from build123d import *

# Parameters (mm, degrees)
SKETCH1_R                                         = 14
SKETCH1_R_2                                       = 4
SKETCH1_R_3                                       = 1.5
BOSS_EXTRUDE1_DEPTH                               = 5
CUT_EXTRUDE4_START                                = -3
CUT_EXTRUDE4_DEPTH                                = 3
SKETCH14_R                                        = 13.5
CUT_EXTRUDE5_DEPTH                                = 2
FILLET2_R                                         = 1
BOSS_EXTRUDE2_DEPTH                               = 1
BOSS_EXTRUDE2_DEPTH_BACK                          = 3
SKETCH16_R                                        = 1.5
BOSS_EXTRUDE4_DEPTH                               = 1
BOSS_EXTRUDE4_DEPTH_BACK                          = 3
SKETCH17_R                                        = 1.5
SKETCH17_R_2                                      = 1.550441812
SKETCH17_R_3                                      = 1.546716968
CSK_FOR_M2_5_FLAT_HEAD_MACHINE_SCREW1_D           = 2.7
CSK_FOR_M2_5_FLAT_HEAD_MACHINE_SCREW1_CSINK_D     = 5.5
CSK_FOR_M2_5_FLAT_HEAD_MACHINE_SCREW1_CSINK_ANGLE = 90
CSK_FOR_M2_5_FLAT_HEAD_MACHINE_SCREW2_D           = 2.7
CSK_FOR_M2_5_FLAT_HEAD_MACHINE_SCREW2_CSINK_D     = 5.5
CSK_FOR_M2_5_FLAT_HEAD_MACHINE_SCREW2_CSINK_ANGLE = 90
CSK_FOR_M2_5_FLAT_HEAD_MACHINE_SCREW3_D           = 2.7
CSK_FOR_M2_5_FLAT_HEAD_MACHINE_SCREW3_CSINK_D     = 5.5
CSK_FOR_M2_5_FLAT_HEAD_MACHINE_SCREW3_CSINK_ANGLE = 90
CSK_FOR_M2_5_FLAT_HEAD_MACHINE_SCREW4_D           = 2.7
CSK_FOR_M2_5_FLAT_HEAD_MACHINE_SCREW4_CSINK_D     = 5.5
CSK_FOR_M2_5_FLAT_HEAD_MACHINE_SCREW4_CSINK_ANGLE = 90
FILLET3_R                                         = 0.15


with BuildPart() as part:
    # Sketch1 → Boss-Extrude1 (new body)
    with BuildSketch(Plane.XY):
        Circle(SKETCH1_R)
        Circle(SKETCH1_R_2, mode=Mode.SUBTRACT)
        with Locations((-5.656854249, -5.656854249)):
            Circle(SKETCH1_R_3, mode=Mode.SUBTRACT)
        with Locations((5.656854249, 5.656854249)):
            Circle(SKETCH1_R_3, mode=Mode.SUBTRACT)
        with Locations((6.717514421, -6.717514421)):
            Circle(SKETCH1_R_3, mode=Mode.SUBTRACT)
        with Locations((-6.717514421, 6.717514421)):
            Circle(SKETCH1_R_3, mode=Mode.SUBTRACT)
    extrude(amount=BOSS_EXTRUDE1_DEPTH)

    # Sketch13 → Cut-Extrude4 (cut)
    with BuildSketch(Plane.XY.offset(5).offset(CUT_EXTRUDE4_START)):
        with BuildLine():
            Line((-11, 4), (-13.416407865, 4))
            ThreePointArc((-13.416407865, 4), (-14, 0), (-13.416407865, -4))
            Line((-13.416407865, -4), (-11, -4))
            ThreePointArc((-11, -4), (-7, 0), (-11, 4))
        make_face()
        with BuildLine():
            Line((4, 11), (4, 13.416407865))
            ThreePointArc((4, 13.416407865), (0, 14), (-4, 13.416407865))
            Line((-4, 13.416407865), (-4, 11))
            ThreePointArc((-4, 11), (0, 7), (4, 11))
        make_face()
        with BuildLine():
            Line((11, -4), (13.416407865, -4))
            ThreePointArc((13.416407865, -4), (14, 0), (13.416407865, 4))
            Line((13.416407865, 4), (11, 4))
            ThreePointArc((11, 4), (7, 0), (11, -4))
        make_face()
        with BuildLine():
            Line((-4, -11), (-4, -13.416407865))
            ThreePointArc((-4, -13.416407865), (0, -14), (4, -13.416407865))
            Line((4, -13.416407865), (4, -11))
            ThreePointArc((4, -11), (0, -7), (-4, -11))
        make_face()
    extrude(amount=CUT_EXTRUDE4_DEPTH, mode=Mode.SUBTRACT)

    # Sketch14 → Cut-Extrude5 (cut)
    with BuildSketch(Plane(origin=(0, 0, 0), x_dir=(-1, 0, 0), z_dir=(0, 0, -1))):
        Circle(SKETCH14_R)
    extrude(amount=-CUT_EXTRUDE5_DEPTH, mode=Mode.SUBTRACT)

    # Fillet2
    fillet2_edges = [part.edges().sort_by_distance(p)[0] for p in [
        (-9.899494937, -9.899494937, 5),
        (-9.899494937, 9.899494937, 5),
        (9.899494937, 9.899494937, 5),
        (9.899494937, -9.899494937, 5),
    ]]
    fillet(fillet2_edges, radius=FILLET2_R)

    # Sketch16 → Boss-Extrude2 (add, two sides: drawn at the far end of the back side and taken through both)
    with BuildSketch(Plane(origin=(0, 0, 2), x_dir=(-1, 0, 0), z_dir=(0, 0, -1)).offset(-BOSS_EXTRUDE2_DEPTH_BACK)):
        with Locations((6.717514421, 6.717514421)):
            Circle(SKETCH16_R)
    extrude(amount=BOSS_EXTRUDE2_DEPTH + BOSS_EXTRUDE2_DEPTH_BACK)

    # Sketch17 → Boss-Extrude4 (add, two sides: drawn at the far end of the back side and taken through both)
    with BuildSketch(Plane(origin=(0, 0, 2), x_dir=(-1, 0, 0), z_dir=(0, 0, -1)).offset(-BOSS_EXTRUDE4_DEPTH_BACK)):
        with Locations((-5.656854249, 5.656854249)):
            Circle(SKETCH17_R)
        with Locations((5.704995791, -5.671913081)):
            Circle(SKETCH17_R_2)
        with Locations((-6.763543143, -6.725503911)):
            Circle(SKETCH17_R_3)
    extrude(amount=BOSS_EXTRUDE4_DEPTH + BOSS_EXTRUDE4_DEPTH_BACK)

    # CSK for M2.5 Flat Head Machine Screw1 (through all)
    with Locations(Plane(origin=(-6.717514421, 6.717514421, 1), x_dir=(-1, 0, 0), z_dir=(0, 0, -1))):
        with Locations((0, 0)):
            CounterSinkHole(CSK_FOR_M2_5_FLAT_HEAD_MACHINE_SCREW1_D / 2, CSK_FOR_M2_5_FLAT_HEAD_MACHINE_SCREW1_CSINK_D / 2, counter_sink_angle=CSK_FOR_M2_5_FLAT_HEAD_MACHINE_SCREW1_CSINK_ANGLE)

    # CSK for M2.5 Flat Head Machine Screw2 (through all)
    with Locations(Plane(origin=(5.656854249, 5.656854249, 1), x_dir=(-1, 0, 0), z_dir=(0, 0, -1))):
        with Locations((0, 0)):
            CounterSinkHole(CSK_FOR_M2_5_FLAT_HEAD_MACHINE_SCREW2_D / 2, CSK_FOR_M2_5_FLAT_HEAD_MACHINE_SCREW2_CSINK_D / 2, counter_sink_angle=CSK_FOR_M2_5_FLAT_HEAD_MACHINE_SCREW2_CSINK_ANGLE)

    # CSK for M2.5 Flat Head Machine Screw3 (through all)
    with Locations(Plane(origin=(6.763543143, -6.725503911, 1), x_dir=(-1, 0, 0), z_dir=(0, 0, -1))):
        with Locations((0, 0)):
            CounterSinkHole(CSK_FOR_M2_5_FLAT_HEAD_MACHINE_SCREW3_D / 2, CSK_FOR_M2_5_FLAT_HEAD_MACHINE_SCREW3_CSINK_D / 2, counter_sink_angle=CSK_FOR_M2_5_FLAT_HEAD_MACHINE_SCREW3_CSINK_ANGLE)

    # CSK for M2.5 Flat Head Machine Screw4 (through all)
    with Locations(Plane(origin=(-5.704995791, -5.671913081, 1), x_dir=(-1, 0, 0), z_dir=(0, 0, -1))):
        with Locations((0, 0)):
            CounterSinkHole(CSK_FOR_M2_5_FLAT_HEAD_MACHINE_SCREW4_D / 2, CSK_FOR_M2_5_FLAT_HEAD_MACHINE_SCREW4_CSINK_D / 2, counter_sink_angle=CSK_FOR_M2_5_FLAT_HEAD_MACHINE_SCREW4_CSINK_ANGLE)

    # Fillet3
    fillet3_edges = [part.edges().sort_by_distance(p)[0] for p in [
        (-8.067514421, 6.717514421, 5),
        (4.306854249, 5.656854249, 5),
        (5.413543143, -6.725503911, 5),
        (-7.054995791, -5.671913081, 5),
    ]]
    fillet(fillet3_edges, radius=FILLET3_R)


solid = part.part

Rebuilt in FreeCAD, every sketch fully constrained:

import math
import FreeCAD as App
import Part
import Sketcher

V = App.Vector


def edges_at(feature, points):
    """Names of the edges that pass closest to the given points."""
    edges = feature.Shape.Edges
    near = lambda p: min(range(len(edges)), key=lambda i: edges[i].distToShape(Part.Vertex(*p))[0])
    return sorted({f"Edge{near(p) + 1}" for p in points})

doc = App.newDocument("Part")
body = doc.addObject("PartDesign::Body", "Body")

# Sketch on XY plane
sketch1 = body.newObject("Sketcher::SketchObject", "Sketch")
sketch1.AttachmentSupport = (doc.getObject("XY_Plane"), [""])
sketch1.MapMode = "FlatFace"
sketch1.addGeometry(Part.Circle(V(0, 0, 0), V(0, 0, 1), 14), False)
sketch1.addGeometry(Part.Circle(V(-5.7, -5.7, 0), V(0, 0, 1), 1.5), False)
sketch1.addGeometry(Part.Circle(V(6.7, -6.7, 0), V(0, 0, 1), 1.5), False)
sketch1.addGeometry(Part.Circle(V(-6.7, 6.7, 0), V(0, 0, 1), 1.5), False)
sketch1.addGeometry(Part.Circle(V(0, 0, 0), V(0, 0, 1), 4), False)
sketch1.addGeometry(Part.Circle(V(5.7, 5.7, 0), V(0, 0, 1), 1.5), False)
sketch1.addConstraint(Sketcher.Constraint("Coincident", 0, 3, -1, 1))
sketch1.addConstraint(Sketcher.Constraint("Coincident", 4, 3, -1, 1))
sketch1.addConstraint(Sketcher.Constraint("Equal", 1, 2))
sketch1.addConstraint(Sketcher.Constraint("Equal", 2, 3))
sketch1.addConstraint(Sketcher.Constraint("Equal", 3, 5))
sketch1.addConstraint(Sketcher.Constraint("Symmetric", 2, 3, 3, 3, -1, 1))
sketch1.addConstraint(Sketcher.Constraint("Symmetric", 1, 3, 5, 3, -1, 1))
sketch1.addConstraint(Sketcher.Constraint("Diameter", 0, 28.0))
sketch1.addConstraint(Sketcher.Constraint("Diameter", 1, 3.0))
sketch1.addConstraint(Sketcher.Constraint("Diameter", 4, 8.0))
sketch1.addConstraint(Sketcher.Constraint("DistanceX", 1, 3, 2, 3, 12.374369))
sketch1.addConstraint(Sketcher.Constraint("DistanceY", 2, 3, 1, 3, 1.06066))
sketch1.addConstraint(Sketcher.Constraint("DistanceX", 3, 3, 1, 3, 1.06066))
sketch1.addConstraint(Sketcher.Constraint("DistanceY", 1, 3, 3, 3, 12.374369))
pad1 = body.newObject("PartDesign::Pad", "Pad")
pad1.Profile = sketch1
pad1.Length = 5

# Sketch on XY plane
sketch2 = body.newObject("Sketcher::SketchObject", "Sketch001")
sketch2.AttachmentSupport = (doc.getObject("XY_Plane"), [""])
sketch2.MapMode = "FlatFace"
sketch2.AttachmentOffset = App.Placement(V(0, 0, 2), App.Rotation())
sketch2.addGeometry(Part.LineSegment(V(-11, 4, 0), V(-13.4, 4, 0)), False)
sketch2.addGeometry(Part.ArcOfCircle(Part.Circle(V(0, 0, 0), V(0, 0, 1), 14), math.radians(163), math.radians(197)), False)
sketch2.addGeometry(Part.LineSegment(V(-13.4, -4, 0), V(-11, -4, 0)), False)
sketch2.addGeometry(Part.ArcOfCircle(Part.Circle(V(-11, 0, 0), V(0, 0, 1), 4), math.radians(-90), math.radians(90)), False)
sketch2.addGeometry(Part.LineSegment(V(4, 11, 0), V(4, 13.4, 0)), False)
sketch2.addGeometry(Part.ArcOfCircle(Part.Circle(V(0, 0, 0), V(0, 0, 1), 14), math.radians(73), math.radians(107)), False)
sketch2.addGeometry(Part.LineSegment(V(-4, 13.4, 0), V(-4, 11, 0)), False)
sketch2.addGeometry(Part.ArcOfCircle(Part.Circle(V(0, 11, 0), V(0, 0, 1), 4), math.radians(180), math.radians(360)), False)
sketch2.addGeometry(Part.LineSegment(V(11, -4, 0), V(13.4, -4, 0)), False)
sketch2.addGeometry(Part.ArcOfCircle(Part.Circle(V(0, 0, 0), V(0, 0, 1), 14), math.radians(-17), math.radians(17)), False)
sketch2.addGeometry(Part.LineSegment(V(13.4, 4, 0), V(11, 4, 0)), False)
sketch2.addGeometry(Part.ArcOfCircle(Part.Circle(V(11, 0, 0), V(0, 0, 1), 4), math.radians(90), math.radians(270)), False)
sketch2.addGeometry(Part.LineSegment(V(-4, -11, 0), V(-4, -13.4, 0)), False)
sketch2.addGeometry(Part.ArcOfCircle(Part.Circle(V(0, 0, 0), V(0, 0, 1), 14), math.radians(-107), math.radians(-73)), False)
sketch2.addGeometry(Part.LineSegment(V(4, -13.4, 0), V(4, -11, 0)), False)
sketch2.addGeometry(Part.ArcOfCircle(Part.Circle(V(0, -11, 0), V(0, 0, 1), 4), math.radians(0), math.radians(180)), False)
sketch2.addConstraint(Sketcher.Constraint("Coincident", 0, 2, 1, 1))
sketch2.addConstraint(Sketcher.Constraint("Coincident", 1, 2, 2, 1))
sketch2.addConstraint(Sketcher.Constraint("Tangent", 2, 2, 3, 1))
sketch2.addConstraint(Sketcher.Constraint("Tangent", 3, 2, 0, 1))
sketch2.addConstraint(Sketcher.Constraint("Coincident", 4, 2, 5, 1))
sketch2.addConstraint(Sketcher.Constraint("Coincident", 5, 2, 6, 1))
sketch2.addConstraint(Sketcher.Constraint("Tangent", 6, 2, 7, 1))
sketch2.addConstraint(Sketcher.Constraint("Tangent", 7, 2, 4, 1))
sketch2.addConstraint(Sketcher.Constraint("Coincident", 8, 2, 9, 1))
sketch2.addConstraint(Sketcher.Constraint("Coincident", 9, 2, 10, 1))
sketch2.addConstraint(Sketcher.Constraint("Tangent", 10, 2, 11, 1))
sketch2.addConstraint(Sketcher.Constraint("Tangent", 11, 2, 8, 1))
sketch2.addConstraint(Sketcher.Constraint("Coincident", 12, 2, 13, 1))
sketch2.addConstraint(Sketcher.Constraint("Coincident", 13, 2, 14, 1))
sketch2.addConstraint(Sketcher.Constraint("Tangent", 14, 2, 15, 1))
sketch2.addConstraint(Sketcher.Constraint("Tangent", 15, 2, 12, 1))
sketch2.addConstraint(Sketcher.Constraint("Horizontal", 0))
sketch2.addConstraint(Sketcher.Constraint("Horizontal", 2))
sketch2.addConstraint(Sketcher.Constraint("Vertical", 4))
sketch2.addConstraint(Sketcher.Constraint("Vertical", 6))
sketch2.addConstraint(Sketcher.Constraint("Horizontal", 8))
sketch2.addConstraint(Sketcher.Constraint("Horizontal", 10))
sketch2.addConstraint(Sketcher.Constraint("Vertical", 12))
sketch2.addConstraint(Sketcher.Constraint("Vertical", 14))
sketch2.addConstraint(Sketcher.Constraint("Coincident", 1, 3, -1, 1))
sketch2.addConstraint(Sketcher.Constraint("Coincident", 5, 3, -1, 1))
sketch2.addConstraint(Sketcher.Constraint("Coincident", 9, 3, -1, 1))
sketch2.addConstraint(Sketcher.Constraint("Coincident", 13, 3, -1, 1))
sketch2.addConstraint(Sketcher.Constraint("Equal", 1, 5))
sketch2.addConstraint(Sketcher.Constraint("Equal", 3, 7))
sketch2.addConstraint(Sketcher.Constraint("Equal", 5, 9))
sketch2.addConstraint(Sketcher.Constraint("Equal", 7, 11))
sketch2.addConstraint(Sketcher.Constraint("Equal", 9, 13))
sketch2.addConstraint(Sketcher.Constraint("Equal", 11, 15))
sketch2.addConstraint(Sketcher.Constraint("Symmetric", 3, 3, 11, 3, -1, 1))
sketch2.addConstraint(Sketcher.Constraint("Symmetric", 7, 3, 15, 3, -1, 1))
sketch2.addConstraint(Sketcher.Constraint("PointOnObject", 3, 3, -1))
sketch2.addConstraint(Sketcher.Constraint("PointOnObject", 7, 3, -2))
sketch2.addConstraint(Sketcher.Constraint("Equal", 10, 4))
sketch2.addConstraint(Sketcher.Constraint("Radius", 1, 14.0))
sketch2.addConstraint(Sketcher.Constraint("Radius", 3, 4.0))
sketch2.addConstraint(Sketcher.Constraint("DistanceX", 3, 3, -1, 1, 11.0))
pocket1 = body.newObject("PartDesign::Pocket", "Pocket")
pocket1.Profile = sketch2
pocket1.Length = 3
pocket1.Reversed = True

# Sketch on XY plane
sketch3 = body.newObject("Sketcher::SketchObject", "Sketch002")
sketch3.AttachmentSupport = (doc.getObject("XY_Plane"), [""])
sketch3.MapMode = "FlatFace"
sketch3.addGeometry(Part.Circle(V(0, 0, 0), V(0, 0, 1), 14), False)
sketch3.addConstraint(Sketcher.Constraint("Coincident", 0, 3, -1, 1))
sketch3.addConstraint(Sketcher.Constraint("Diameter", 0, 27.0))
pocket2 = body.newObject("PartDesign::Pocket", "Pocket001")
pocket2.Profile = sketch3
pocket2.Length = 2
pocket2.Reversed = True
doc.recompute()

fillet = body.newObject("PartDesign::Fillet", "Fillet")
fillet.Base = (pocket2, edges_at(pocket2, [
    (-9.899, -9.899, 5),
    (-9.899, 9.899, 5),
    (9.899, 9.899, 5),
    (9.899, -9.899, 5),
]))
fillet.Radius = 1

# Sketch on XY plane
sketch4 = body.newObject("Sketcher::SketchObject", "Sketch003")
sketch4.AttachmentSupport = (doc.getObject("XY_Plane"), [""])
sketch4.MapMode = "FlatFace"
sketch4.AttachmentOffset = App.Placement(V(0, 0, 2), App.Rotation())
sketch4.addGeometry(Part.Circle(V(-6.7, 6.7, 0), V(0, 0, 1), 1.5), False)
sketch4.addConstraint(Sketcher.Constraint("Diameter", 0, 3.0))
sketch4.addConstraint(Sketcher.Constraint("DistanceX", 0, 3, -1, 1, 6.717514))
sketch4.addConstraint(Sketcher.Constraint("DistanceY", -1, 1, 0, 3, 6.717514))
pad2 = body.newObject("PartDesign::Pad", "Pad001")
pad2.Profile = sketch4
pad2.Type = "TwoLengths"
pad2.Length = 1
pad2.Length2 = 3
pad2.Reversed = True

# Sketch on XY plane
sketch5 = body.newObject("Sketcher::SketchObject", "Sketch004")
sketch5.AttachmentSupport = (doc.getObject("XY_Plane"), [""])
sketch5.MapMode = "FlatFace"
sketch5.AttachmentOffset = App.Placement(V(0, 0, 2), App.Rotation())
sketch5.addGeometry(Part.Circle(V(5.7, 5.7, 0), V(0, 0, 1), 1.5), False)
sketch5.addGeometry(Part.Circle(V(-5.7, -5.7, 0), V(0, 0, 1), 1.6), False)
sketch5.addGeometry(Part.Circle(V(6.8, -6.7, 0), V(0, 0, 1), 1.5), False)
sketch5.addConstraint(Sketcher.Constraint("Diameter", 0, 3.0))
sketch5.addConstraint(Sketcher.Constraint("Diameter", 1, 3.100884))
sketch5.addConstraint(Sketcher.Constraint("Diameter", 2, 3.093434))
sketch5.addConstraint(Sketcher.Constraint("DistanceX", 1, 3, 0, 3, 11.36185))
sketch5.addConstraint(Sketcher.Constraint("DistanceX", 0, 3, 2, 3, 1.106689))
sketch5.addConstraint(Sketcher.Constraint("DistanceY", 2, 3, 0, 3, 12.382358))
sketch5.addConstraint(Sketcher.Constraint("DistanceY", 2, 3, 1, 3, 1.053591))
sketch5.addConstraint(Sketcher.Constraint("DistanceX", -1, 1, 0, 3, 5.656854))
sketch5.addConstraint(Sketcher.Constraint("DistanceY", -1, 1, 0, 3, 5.656854))
pad3 = body.newObject("PartDesign::Pad", "Pad002")
pad3.Profile = sketch5
pad3.Type = "TwoLengths"
pad3.Length = 1
pad3.Length2 = 3
pad3.Reversed = True

# Sketch on XY plane
sketch6 = body.newObject("Sketcher::SketchObject", "Sketch005")
sketch6.AttachmentSupport = (doc.getObject("XY_Plane"), [""])
sketch6.MapMode = "FlatFace"
sketch6.AttachmentOffset = App.Placement(V(0, 0, 1), App.Rotation())
sketch6.addGeometry(Part.Circle(V(-6.7, 6.7, 0), V(0, 0, 1), 1.4), False)
sketch6.addConstraint(Sketcher.Constraint("Diameter", 0, 2.7))
sketch6.addConstraint(Sketcher.Constraint("DistanceX", 0, 3, -1, 1, 6.717514))
sketch6.addConstraint(Sketcher.Constraint("DistanceY", -1, 1, 0, 3, 6.717514))
doc.recompute()
hole = body.newObject("PartDesign::Hole", "Hole")
hole.Profile = sketch6
hole.ThreadType = "None"
hole.Diameter = 2.7
hole.DepthType = "ThroughAll"
hole.HoleCutType = "Countersink"
hole.HoleCutDiameter = 5.5
hole.HoleCutCountersinkAngle = 90
hole.Reversed = True

# Sketch on XY plane
sketch7 = body.newObject("Sketcher::SketchObject", "Sketch006")
sketch7.AttachmentSupport = (doc.getObject("XY_Plane"), [""])
sketch7.MapMode = "FlatFace"
sketch7.AttachmentOffset = App.Placement(V(0, 0, 1), App.Rotation())
sketch7.addGeometry(Part.Circle(V(5.7, 5.7, 0), V(0, 0, 1), 1.4), False)
sketch7.addConstraint(Sketcher.Constraint("Diameter", 0, 2.7))
sketch7.addConstraint(Sketcher.Constraint("DistanceX", -1, 1, 0, 3, 5.656854))
sketch7.addConstraint(Sketcher.Constraint("DistanceY", -1, 1, 0, 3, 5.656854))
doc.recompute()
hole2 = body.newObject("PartDesign::Hole", "Hole001")
hole2.Profile = sketch7
hole2.ThreadType = "None"
hole2.Diameter = 2.7
hole2.DepthType = "ThroughAll"
hole2.HoleCutType = "Countersink"
hole2.HoleCutDiameter = 5.5
hole2.HoleCutCountersinkAngle = 90
hole2.Reversed = True

# Sketch on XY plane
sketch8 = body.newObject("Sketcher::SketchObject", "Sketch007")
sketch8.AttachmentSupport = (doc.getObject("XY_Plane"), [""])
sketch8.MapMode = "FlatFace"
sketch8.AttachmentOffset = App.Placement(V(0, 0, 1), App.Rotation())
sketch8.addGeometry(Part.Circle(V(6.8, -6.7, 0), V(0, 0, 1), 1.4), False)
sketch8.addConstraint(Sketcher.Constraint("Diameter", 0, 2.7))
sketch8.addConstraint(Sketcher.Constraint("DistanceX", -1, 1, 0, 3, 6.763543))
sketch8.addConstraint(Sketcher.Constraint("DistanceY", 0, 3, -1, 1, 6.725504))
doc.recompute()
hole3 = body.newObject("PartDesign::Hole", "Hole002")
hole3.Profile = sketch8
hole3.ThreadType = "None"
hole3.Diameter = 2.7
hole3.DepthType = "ThroughAll"
hole3.HoleCutType = "Countersink"
hole3.HoleCutDiameter = 5.5
hole3.HoleCutCountersinkAngle = 90
hole3.Reversed = True

# Sketch on XY plane
sketch9 = body.newObject("Sketcher::SketchObject", "Sketch008")
sketch9.AttachmentSupport = (doc.getObject("XY_Plane"), [""])
sketch9.MapMode = "FlatFace"
sketch9.AttachmentOffset = App.Placement(V(0, 0, 1), App.Rotation())
sketch9.addGeometry(Part.Circle(V(-5.7, -5.7, 0), V(0, 0, 1), 1.4), False)
sketch9.addConstraint(Sketcher.Constraint("Diameter", 0, 2.7))
sketch9.addConstraint(Sketcher.Constraint("DistanceX", 0, 3, -1, 1, 5.704996))
sketch9.addConstraint(Sketcher.Constraint("DistanceY", 0, 3, -1, 1, 5.671913))
doc.recompute()
hole4 = body.newObject("PartDesign::Hole", "Hole003")
hole4.Profile = sketch9
hole4.ThreadType = "None"
hole4.Diameter = 2.7
hole4.DepthType = "ThroughAll"
hole4.HoleCutType = "Countersink"
hole4.HoleCutDiameter = 5.5
hole4.HoleCutCountersinkAngle = 90
hole4.Reversed = True
doc.recompute()

fillet2 = body.newObject("PartDesign::Fillet", "Fillet001")
fillet2.Base = (hole4, edges_at(hole4, [
    (-8.068, 6.718, 5),
    (4.307, 5.657, 5),
    (5.414, -6.726, 5),
    (-7.055, -5.672, 5),
]))
fillet2.Radius = 0.15

doc.recompute()
